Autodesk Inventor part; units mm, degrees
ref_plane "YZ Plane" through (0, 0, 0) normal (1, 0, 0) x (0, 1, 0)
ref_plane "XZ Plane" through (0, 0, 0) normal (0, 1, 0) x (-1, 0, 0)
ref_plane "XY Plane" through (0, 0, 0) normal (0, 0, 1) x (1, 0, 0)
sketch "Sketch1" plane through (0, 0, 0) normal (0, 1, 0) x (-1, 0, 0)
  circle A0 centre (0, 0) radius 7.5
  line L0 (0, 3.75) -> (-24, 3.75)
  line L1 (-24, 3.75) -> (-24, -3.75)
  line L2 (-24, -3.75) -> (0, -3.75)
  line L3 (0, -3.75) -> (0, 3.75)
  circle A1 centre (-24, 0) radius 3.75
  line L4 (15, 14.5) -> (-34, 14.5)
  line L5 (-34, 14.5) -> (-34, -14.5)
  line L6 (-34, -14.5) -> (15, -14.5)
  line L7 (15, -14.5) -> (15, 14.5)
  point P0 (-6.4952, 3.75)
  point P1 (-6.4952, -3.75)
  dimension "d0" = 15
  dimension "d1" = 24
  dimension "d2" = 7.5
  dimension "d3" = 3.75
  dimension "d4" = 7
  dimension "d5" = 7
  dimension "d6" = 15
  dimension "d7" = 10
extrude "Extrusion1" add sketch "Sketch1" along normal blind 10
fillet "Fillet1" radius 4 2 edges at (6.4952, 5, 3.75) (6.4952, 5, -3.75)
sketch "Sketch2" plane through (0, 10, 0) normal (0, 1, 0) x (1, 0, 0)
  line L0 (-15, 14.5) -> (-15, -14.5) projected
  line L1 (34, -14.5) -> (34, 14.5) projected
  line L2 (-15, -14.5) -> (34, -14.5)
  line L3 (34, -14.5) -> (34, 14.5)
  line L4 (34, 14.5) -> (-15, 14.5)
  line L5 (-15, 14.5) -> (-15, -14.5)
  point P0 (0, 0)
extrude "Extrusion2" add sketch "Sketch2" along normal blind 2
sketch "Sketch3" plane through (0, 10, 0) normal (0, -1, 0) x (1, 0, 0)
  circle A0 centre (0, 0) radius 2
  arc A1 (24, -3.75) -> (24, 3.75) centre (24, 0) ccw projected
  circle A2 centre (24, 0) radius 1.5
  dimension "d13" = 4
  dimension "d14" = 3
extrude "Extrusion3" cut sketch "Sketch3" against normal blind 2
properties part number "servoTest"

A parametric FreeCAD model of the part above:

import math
import FreeCAD as App
import Part
import Sketcher
from FreeCAD import Vector
Q = App.Units.Quantity


def edges_at(feature, points):
    """Names of the edges that pass closest to the given points."""
    edges = feature.Shape.Edges
    near = lambda p: min(range(len(edges)), key=lambda i: edges[i].distToShape(Part.Vertex(*p))[0])
    return sorted({f"Edge{near(p) + 1}" for p in points})

doc = App.newDocument("Part")
body = doc.addObject("PartDesign::Body", "Body")

# Sketch on XZ plane
sketch1 = body.newObject("Sketcher::SketchObject", "Sketch")
sketch1.AttachmentSupport = (doc.getObject("XZ_Plane"), [""])
sketch1.MapMode = "FlatFace"
sketch1.addGeometry([
    Part.LineSegment(Vector(-15, -14.5, 0), Vector(-15, 14.5, 0)),  # 0
    Part.LineSegment(Vector(-15, 14.5, 0), Vector(34, 14.5, 0)),  # 1
    Part.LineSegment(Vector(34, 14.5, 0), Vector(34, -14.5, 0)),  # 2
    Part.LineSegment(Vector(34, -14.5, 0), Vector(-15, -14.5, 0)),  # 3
    Part.ArcOfCircle(Part.Circle(Vector(0, 0, 0), Vector(0, 0, 1), 7.5), math.radians(30), math.radians(330)),  # 4
    Part.LineSegment(Vector(6.495191, -3.75, 0), Vector(24, -3.75, 0)),  # 5
    Part.ArcOfCircle(Part.Circle(Vector(24, 0, 0), Vector(0, 0, 1), 3.75), math.radians(-90), math.radians(90)),  # 6
    Part.LineSegment(Vector(24, 3.75, 0), Vector(6.495191, 3.75, 0)),  # 7
], False)
sketch1.addConstraint([
    Sketcher.Constraint("Coincident", 0, 2, 1, 1),
    Sketcher.Constraint("Coincident", 1, 2, 2, 1),
    Sketcher.Constraint("Coincident", 2, 2, 3, 1),
    Sketcher.Constraint("Coincident", 3, 2, 0, 1),
    Sketcher.Constraint("Coincident", 4, 2, 5, 1),
    Sketcher.Constraint("Tangent", 5, 2, 6, 1),
    Sketcher.Constraint("Tangent", 6, 2, 7, 1),
    Sketcher.Constraint("Coincident", 7, 2, 4, 1),
    Sketcher.Constraint("Vertical", 0),
    Sketcher.Constraint("Horizontal", 1),
    Sketcher.Constraint("Vertical", 2),
    Sketcher.Constraint("Horizontal", 3),
    Sketcher.Constraint("Horizontal", 5),
    Sketcher.Constraint("Horizontal", 7),
    Sketcher.Constraint("Coincident", 4, 3, -1, 1),
    Sketcher.Constraint("PointOnObject", 6, 3, -1),
    Sketcher.Constraint("Radius", 4, Q("7.5 mm")),
    Sketcher.Constraint("Radius", 6, Q("3.75 mm")),
    Sketcher.Constraint("DistanceX", -1, 1, 6, 3, Q("24 mm")),
    Sketcher.Constraint("DistanceX", 0, 2, -1, 1, Q("15 mm")),
    Sketcher.Constraint("DistanceX", 6, 3, 1, 2, Q("10 mm")),
    Sketcher.Constraint("DistanceY", 0, 1, 0, 2, Q("29 mm")),
    Sketcher.Constraint("DistanceY", -1, 1, 0, 2, Q("14.5 mm")),
])
pad1 = body.newObject("PartDesign::Pad", "Pad")
pad1.Profile = sketch1
pad1.Length = 10
pad1.Reversed = True
doc.recompute()

fillet = body.newObject("PartDesign::Fillet", "Fillet")
fillet.Base = (pad1, edges_at(pad1, [(6.495, 5, 3.75), (6.495, 5, -3.75)]))
fillet.Radius = 4

# Sketch on XZ plane
sketch2 = body.newObject("Sketcher::SketchObject", "Sketch001")
sketch2.AttachmentSupport = (doc.getObject("XZ_Plane"), [""])
sketch2.MapMode = "FlatFace"
sketch2.AttachmentOffset = App.Placement(Vector(0, 0, -10), App.Rotation())
sketch2.addGeometry([
    Part.LineSegment(Vector(34, -14.5, 0), Vector(-15, -14.5, 0)),
    Part.LineSegment(Vector(-15, -14.5, 0), Vector(-15, 14.5, 0)),
    Part.LineSegment(Vector(-15, 14.5, 0), Vector(34, 14.5, 0)),
    Part.LineSegment(Vector(34, 14.5, 0), Vector(34, -14.5, 0)),
], False)
sketch2.addConstraint([
    Sketcher.Constraint("Coincident", 0, 2, 1, 1),
    Sketcher.Constraint("Coincident", 1, 2, 2, 1),
    Sketcher.Constraint("Coincident", 2, 2, 3, 1),
    Sketcher.Constraint("Coincident", 3, 2, 0, 1),
    Sketcher.Constraint("Horizontal", 0),
    Sketcher.Constraint("Vertical", 1),
    Sketcher.Constraint("Horizontal", 2),
    Sketcher.Constraint("Vertical", 3),
    Sketcher.Constraint("DistanceX", 0, 2, 0, 1, Q("49 mm")),
    Sketcher.Constraint("DistanceY", 1, 1, 1, 2, Q("29 mm")),
    Sketcher.Constraint("DistanceX", 0, 2, -1, 1, Q("15 mm")),
    Sketcher.Constraint("DistanceY", 0, 2, -1, 1, Q("14.5 mm")),
])
pad2 = body.newObject("PartDesign::Pad", "Pad001")
pad2.Profile = sketch2
pad2.Length = 2
pad2.Reversed = True

# Sketch on XZ plane
sketch3 = body.newObject("Sketcher::SketchObject", "Sketch002")
sketch3.AttachmentSupport = (doc.getObject("XZ_Plane"), [""])
sketch3.MapMode = "FlatFace"
sketch3.AttachmentOffset = App.Placement(Vector(0, 0, -10), App.Rotation())
sketch3.addGeometry([
    Part.Circle(Vector(0, 0, 0), Vector(0, 0, 1), 2),
    Part.Circle(Vector(24, 0, 0), Vector(0, 0, 1), 1.5),
], False)
sketch3.addConstraint([
    Sketcher.Constraint("Coincident", 0, 3, -1, 1),
    Sketcher.Constraint("PointOnObject", 1, 3, -1),
    Sketcher.Constraint("Diameter", 0, Q("4 mm")),
    Sketcher.Constraint("Diameter", 1, Q("3 mm")),
    Sketcher.Constraint("DistanceX", -1, 1, 1, 3, Q("24 mm")),
])
pocket1 = body.newObject("PartDesign::Pocket", "Pocket")
pocket1.Profile = sketch3
pocket1.Length = 2

doc.recompute()
